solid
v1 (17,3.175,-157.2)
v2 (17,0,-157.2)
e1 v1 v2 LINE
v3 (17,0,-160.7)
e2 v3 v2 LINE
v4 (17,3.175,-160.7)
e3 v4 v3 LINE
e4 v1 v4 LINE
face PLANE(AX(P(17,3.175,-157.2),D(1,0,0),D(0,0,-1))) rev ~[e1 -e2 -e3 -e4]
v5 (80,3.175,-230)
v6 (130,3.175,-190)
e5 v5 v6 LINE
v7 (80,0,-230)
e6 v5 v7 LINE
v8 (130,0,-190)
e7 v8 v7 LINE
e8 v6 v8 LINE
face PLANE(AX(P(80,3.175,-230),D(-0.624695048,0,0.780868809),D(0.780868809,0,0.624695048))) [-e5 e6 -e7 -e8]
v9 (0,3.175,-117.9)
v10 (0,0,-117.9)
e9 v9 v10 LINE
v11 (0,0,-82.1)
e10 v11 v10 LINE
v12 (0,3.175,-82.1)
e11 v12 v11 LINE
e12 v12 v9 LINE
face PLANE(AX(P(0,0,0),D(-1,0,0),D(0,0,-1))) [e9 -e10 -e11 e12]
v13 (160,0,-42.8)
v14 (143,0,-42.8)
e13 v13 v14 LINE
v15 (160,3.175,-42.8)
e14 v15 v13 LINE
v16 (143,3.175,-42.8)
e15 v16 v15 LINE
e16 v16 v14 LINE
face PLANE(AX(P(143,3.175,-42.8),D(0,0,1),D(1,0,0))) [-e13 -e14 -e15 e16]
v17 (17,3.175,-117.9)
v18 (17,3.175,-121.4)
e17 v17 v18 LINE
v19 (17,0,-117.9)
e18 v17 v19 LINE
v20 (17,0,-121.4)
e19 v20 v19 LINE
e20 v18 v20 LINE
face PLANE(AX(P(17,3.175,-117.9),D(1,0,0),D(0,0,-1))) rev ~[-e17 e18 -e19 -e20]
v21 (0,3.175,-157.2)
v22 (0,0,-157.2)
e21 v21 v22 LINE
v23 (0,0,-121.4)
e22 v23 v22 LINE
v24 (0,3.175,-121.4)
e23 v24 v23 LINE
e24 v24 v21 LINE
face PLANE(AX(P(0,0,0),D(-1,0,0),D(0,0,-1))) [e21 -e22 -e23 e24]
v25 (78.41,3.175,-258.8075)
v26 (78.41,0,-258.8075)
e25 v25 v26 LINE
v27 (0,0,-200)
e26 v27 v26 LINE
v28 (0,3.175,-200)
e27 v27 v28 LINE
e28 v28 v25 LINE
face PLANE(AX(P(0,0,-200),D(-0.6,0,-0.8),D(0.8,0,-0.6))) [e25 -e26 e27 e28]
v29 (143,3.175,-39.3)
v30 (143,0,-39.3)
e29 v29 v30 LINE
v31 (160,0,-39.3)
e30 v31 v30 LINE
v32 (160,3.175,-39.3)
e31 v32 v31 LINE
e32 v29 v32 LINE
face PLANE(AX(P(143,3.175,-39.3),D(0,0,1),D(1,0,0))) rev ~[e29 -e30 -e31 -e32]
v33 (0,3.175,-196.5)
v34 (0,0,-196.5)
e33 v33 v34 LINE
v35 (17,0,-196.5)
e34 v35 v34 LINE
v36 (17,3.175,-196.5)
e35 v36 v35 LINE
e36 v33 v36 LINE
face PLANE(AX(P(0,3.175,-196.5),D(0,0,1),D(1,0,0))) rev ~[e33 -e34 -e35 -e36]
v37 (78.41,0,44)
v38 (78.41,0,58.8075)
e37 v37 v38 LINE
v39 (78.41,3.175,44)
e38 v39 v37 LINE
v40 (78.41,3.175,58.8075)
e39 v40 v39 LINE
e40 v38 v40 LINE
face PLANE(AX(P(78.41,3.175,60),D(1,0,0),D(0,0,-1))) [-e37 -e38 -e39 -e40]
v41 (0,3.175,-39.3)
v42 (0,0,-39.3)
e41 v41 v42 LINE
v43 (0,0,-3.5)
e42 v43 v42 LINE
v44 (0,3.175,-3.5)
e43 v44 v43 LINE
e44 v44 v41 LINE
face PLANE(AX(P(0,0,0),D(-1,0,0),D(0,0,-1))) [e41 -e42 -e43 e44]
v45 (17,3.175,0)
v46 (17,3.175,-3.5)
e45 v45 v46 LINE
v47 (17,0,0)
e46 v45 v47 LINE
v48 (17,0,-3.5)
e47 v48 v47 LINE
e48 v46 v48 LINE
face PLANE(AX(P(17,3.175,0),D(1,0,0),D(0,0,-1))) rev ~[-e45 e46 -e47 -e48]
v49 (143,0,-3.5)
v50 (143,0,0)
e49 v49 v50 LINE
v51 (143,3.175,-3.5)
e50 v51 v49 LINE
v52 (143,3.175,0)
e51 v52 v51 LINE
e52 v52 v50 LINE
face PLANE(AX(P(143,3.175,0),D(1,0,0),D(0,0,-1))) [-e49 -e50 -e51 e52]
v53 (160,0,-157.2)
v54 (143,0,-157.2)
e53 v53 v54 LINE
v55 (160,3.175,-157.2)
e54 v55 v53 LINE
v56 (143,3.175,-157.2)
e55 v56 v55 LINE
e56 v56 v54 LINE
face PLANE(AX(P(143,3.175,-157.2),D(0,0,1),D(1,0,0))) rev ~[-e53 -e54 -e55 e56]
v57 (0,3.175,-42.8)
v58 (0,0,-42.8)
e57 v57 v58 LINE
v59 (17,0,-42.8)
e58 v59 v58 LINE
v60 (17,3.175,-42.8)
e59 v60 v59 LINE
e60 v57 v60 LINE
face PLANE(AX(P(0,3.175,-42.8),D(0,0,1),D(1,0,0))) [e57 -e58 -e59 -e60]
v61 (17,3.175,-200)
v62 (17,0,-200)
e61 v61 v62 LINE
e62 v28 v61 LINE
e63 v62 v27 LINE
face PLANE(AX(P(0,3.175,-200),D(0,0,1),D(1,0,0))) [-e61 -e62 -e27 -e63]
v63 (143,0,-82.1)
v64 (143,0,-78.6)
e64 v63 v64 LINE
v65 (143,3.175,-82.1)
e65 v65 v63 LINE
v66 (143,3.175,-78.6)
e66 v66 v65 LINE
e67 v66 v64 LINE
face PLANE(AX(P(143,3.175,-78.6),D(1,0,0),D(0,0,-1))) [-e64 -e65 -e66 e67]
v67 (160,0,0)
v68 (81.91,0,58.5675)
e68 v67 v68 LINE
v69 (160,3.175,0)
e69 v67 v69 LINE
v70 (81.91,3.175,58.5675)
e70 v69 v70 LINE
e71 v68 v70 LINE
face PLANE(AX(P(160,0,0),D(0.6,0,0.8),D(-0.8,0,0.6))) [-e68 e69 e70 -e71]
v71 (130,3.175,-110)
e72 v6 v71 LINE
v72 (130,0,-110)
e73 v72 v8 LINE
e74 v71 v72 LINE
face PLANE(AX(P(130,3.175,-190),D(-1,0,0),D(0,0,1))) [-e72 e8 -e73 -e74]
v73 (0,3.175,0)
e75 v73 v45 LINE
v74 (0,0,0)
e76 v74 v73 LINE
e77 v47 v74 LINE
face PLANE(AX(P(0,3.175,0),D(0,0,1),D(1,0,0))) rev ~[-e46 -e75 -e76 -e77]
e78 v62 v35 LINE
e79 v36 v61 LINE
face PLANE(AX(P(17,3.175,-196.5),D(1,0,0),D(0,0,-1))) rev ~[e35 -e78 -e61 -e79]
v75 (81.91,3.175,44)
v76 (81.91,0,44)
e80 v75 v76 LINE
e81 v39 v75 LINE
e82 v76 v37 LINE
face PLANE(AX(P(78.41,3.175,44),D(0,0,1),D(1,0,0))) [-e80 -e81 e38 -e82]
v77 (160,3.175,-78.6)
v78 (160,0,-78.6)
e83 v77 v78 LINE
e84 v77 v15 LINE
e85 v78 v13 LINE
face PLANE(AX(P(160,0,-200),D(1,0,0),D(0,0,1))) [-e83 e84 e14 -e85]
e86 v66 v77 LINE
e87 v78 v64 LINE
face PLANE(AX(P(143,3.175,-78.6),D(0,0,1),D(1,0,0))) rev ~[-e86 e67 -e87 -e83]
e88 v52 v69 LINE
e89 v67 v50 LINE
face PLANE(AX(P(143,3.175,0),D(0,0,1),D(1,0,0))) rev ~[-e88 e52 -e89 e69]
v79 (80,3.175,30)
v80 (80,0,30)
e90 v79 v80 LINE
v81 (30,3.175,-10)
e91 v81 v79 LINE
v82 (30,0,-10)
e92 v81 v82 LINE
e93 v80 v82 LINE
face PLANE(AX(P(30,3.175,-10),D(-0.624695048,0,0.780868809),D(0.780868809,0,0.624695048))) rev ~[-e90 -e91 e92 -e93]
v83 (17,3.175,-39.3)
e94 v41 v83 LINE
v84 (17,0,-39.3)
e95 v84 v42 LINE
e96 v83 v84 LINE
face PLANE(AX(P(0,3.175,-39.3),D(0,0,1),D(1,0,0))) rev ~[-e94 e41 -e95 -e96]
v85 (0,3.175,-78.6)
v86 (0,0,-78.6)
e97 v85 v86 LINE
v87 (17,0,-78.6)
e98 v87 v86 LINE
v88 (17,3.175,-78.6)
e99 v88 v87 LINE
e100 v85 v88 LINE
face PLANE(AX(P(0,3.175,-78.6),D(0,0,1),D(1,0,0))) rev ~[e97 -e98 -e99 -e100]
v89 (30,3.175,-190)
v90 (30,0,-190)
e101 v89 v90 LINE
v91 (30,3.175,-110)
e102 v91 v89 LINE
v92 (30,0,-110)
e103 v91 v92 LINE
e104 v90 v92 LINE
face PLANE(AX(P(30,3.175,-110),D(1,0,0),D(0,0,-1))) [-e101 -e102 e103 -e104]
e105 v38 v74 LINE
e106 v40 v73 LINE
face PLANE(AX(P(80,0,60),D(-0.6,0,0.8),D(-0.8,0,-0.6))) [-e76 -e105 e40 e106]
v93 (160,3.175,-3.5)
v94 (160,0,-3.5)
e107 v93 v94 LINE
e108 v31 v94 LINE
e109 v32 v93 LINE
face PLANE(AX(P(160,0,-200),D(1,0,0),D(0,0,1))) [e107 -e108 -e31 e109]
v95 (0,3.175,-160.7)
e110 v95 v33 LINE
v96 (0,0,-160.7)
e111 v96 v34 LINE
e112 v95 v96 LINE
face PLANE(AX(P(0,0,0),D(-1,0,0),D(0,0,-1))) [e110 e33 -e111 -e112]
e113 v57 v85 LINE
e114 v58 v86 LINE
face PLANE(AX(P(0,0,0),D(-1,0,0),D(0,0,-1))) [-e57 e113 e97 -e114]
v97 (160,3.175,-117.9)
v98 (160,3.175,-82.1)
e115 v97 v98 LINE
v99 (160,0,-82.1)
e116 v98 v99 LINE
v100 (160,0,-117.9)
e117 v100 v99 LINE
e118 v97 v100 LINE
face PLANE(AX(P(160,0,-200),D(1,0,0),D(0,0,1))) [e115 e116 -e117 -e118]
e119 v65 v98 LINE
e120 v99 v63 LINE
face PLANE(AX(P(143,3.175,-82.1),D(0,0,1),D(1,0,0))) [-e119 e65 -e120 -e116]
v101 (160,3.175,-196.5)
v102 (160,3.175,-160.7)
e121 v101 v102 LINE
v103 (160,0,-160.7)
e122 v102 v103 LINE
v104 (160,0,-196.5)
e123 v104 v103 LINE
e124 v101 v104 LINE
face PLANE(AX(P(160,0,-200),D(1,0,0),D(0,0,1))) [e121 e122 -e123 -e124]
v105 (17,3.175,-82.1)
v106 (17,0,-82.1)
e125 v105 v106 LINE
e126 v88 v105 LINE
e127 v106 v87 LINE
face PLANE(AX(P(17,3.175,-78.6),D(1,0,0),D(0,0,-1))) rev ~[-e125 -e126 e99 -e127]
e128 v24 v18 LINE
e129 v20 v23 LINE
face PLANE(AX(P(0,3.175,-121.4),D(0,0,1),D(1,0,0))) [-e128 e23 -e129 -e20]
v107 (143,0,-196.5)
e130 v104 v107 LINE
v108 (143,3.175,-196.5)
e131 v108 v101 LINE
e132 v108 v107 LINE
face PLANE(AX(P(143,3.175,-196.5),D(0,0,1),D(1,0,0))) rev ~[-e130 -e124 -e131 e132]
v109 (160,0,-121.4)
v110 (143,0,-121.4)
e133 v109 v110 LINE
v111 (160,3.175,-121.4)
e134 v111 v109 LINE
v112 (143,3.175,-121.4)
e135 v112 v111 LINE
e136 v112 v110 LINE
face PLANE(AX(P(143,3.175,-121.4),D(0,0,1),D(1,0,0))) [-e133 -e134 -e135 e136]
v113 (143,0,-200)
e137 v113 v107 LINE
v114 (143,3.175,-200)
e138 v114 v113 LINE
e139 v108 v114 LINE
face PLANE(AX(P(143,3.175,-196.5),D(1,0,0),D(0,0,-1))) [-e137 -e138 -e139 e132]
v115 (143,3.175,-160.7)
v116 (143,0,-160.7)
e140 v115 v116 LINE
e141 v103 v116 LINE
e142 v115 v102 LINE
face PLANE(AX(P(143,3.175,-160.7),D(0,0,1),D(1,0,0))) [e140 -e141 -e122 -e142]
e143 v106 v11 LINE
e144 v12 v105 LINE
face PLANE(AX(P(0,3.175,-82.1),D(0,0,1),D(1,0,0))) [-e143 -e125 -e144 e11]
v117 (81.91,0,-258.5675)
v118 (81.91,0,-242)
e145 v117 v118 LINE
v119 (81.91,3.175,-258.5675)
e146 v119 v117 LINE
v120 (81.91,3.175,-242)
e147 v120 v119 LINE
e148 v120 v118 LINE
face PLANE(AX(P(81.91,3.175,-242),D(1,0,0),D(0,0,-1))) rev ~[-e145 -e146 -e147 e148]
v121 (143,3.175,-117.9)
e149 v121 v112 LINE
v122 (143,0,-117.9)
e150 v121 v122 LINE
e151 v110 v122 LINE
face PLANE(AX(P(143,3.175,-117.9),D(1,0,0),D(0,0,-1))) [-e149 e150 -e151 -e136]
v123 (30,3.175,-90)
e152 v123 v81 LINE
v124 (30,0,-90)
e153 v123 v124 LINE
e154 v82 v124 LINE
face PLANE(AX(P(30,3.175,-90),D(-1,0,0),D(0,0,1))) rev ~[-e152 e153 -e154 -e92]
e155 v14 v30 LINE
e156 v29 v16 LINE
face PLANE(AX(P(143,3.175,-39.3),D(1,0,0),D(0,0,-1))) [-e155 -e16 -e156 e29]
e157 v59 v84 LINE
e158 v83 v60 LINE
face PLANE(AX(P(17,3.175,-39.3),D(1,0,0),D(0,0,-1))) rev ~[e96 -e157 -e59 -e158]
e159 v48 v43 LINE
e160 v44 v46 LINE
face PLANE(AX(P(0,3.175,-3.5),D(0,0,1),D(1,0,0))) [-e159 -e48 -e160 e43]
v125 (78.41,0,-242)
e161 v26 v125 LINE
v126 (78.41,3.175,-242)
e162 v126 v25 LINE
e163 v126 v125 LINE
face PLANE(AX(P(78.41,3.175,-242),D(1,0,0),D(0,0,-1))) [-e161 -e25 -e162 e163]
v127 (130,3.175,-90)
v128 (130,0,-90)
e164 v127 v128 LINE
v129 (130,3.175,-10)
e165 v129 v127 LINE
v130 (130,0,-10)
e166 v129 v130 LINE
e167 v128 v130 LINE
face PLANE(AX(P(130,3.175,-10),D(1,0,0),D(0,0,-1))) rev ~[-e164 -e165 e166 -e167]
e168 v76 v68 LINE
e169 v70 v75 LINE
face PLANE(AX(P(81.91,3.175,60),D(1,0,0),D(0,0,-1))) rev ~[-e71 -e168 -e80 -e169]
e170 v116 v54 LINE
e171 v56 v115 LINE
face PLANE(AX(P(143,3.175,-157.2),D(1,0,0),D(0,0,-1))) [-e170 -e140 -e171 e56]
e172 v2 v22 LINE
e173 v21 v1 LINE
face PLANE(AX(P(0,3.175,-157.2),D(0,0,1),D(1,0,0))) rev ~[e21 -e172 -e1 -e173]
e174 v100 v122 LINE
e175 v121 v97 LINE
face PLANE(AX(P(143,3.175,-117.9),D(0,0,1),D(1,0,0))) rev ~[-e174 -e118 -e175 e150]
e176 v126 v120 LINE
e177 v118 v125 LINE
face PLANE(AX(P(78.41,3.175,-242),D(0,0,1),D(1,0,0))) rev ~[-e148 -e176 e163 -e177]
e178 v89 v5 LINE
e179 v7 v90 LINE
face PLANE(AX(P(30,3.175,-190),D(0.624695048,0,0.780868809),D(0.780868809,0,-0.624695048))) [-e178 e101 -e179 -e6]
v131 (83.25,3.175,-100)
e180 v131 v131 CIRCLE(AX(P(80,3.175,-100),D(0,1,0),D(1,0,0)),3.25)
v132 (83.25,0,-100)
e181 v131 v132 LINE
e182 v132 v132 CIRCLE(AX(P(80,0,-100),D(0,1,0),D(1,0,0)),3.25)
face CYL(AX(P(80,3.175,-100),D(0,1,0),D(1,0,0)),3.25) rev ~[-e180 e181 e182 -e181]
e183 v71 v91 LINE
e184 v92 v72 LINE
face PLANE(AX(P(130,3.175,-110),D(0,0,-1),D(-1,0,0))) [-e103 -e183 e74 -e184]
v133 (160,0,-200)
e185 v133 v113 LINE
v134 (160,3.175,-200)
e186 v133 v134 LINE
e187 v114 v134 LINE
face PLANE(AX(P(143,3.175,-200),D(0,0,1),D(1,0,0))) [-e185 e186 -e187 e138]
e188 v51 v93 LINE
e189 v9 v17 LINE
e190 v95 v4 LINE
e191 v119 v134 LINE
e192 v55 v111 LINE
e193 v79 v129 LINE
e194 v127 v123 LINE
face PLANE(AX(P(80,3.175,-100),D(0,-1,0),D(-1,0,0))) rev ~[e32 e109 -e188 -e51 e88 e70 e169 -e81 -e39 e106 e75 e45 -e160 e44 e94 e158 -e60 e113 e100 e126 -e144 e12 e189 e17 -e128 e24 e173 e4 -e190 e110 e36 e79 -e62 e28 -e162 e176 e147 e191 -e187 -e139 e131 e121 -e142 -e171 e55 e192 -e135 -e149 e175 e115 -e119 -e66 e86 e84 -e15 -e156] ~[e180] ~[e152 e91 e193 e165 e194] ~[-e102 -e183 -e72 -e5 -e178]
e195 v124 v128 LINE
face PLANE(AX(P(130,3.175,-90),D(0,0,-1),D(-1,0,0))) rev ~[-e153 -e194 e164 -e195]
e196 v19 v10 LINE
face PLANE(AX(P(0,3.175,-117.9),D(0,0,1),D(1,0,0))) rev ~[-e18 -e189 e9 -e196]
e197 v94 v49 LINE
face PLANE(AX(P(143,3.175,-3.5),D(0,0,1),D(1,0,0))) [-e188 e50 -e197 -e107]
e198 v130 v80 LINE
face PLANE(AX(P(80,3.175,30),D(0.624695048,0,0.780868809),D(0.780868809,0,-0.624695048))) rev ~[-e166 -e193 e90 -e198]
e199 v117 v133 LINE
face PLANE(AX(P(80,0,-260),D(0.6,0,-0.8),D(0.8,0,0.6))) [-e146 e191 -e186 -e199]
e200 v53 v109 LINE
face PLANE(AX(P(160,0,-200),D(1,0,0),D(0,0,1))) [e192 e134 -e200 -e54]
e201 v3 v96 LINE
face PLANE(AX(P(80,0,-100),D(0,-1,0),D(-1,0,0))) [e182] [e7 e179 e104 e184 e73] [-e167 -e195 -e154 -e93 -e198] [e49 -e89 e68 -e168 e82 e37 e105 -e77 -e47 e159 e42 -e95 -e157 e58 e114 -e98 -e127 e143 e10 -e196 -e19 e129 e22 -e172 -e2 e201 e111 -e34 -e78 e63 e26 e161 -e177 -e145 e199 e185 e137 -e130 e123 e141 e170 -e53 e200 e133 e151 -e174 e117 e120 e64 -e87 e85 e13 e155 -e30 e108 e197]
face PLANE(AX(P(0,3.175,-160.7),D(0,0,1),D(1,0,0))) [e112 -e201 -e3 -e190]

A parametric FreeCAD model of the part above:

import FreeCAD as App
import Part
import Sketcher

V = App.Vector


def add_polygon(sketch, points):
    """Adds a closed chain of lines whose ends are joined by coincident constraints."""
    first, n = sketch.GeometryCount, len(points)
    for a, b in zip(points, points[1:] + points[:1]):
        sketch.addGeometry(Part.LineSegment(App.Vector(*a, 0), App.Vector(*b, 0)), False)
    for i in range(n):
        sketch.addConstraint(Sketcher.Constraint("Coincident", first + i, 2, first + (i + 1) % n, 1))

doc = App.newDocument("Part")
body = doc.addObject("PartDesign::Body", "Body")

# Sketch on XZ plane
sketch1 = body.newObject("Sketcher::SketchObject", "Sketch")
sketch1.AttachmentSupport = (doc.getObject("XZ_Plane"), [""])
sketch1.MapMode = "FlatFace"
add_polygon(sketch1, [(80, -260), (0, -200), (0, 0), (80, 60), (160, 0), (160, -200)])  # lines 0-5
sketch1.addConstraint([
    Sketcher.Constraint("Vertical", 1),
    Sketcher.Constraint("Vertical", 4),
    Sketcher.Constraint("Coincident", 1, 2, -1, 1),
    Sketcher.Constraint("PointOnObject", 3, 2, -1),
    Sketcher.Constraint("Parallel", 0, 3),
    Sketcher.Constraint("Parallel", 2, 5),
    Sketcher.Constraint("Horizontal", 0, 2, 4, 2),
    Sketcher.Constraint("Vertical", 2, 2, 5, 2),
    Sketcher.Constraint("DistanceY", 1, 1, 1, 2, 200.0),
    Sketcher.Constraint("Distance", 0, 100.0),
    Sketcher.Constraint("DistanceX", -1, 1, 2, 2, 80.0),
])
pad1 = body.newObject("PartDesign::Pad", "Pad")
pad1.Profile = sketch1
pad1.Length = 3.175
pad1.Reversed = True

# Sketch on XZ plane
sketch2 = body.newObject("Sketcher::SketchObject", "Sketch001")
sketch2.AttachmentSupport = (doc.getObject("XZ_Plane"), [""])
sketch2.MapMode = "FlatFace"
sketch2.AttachmentOffset = App.Placement(V(0, 0, -3.175), App.Rotation())
sketch2.addGeometry(Part.Circle(V(80, -100, 0), V(0, 0, 1), 3.25), False)  # 0
add_polygon(sketch2, [(80, -230), (30, -190), (30, -110), (130, -110), (130, -190)])  # lines 1-5
add_polygon(sketch2, [(0, -160.7), (0, -157.2), (17, -157.2), (17, -160.7)])  # lines 6-9
add_polygon(sketch2, [(30, -90), (30, -10), (80, 30), (130, -10), (130, -90)])  # lines 10-14
add_polygon(sketch2, [(0, -200), (0, -196.5), (17, -196.5), (17, -200)])  # lines 15-18
add_polygon(sketch2, [(0, -121.4), (0, -117.9), (17, -117.9), (17, -121.4)])  # lines 19-22
add_polygon(sketch2, [(0, -82.1), (0, -78.6), (17, -78.6), (17, -82.1)])  # lines 23-26
add_polygon(sketch2, [(0, -42.8), (0, -39.3), (17, -39.3), (17, -42.8)])  # lines 27-30
add_polygon(sketch2, [(0, -3.5), (0, 0), (17, 0), (17, -3.5)])  # lines 31-34
add_polygon(sketch2, [(143, -3.5), (143, 0), (160, 0), (160, -3.5)])  # lines 35-38
add_polygon(sketch2, [(143, -42.8), (143, -39.3), (160, -39.3), (160, -42.8)])  # lines 39-42
add_polygon(sketch2, [(143, -82.1), (143, -78.6), (160, -78.6), (160, -82.1)])  # lines 43-46
add_polygon(sketch2, [(143, -121.4), (143, -117.9), (160, -117.9), (160, -121.4)])  # lines 47-50
add_polygon(sketch2, [(143, -160.7), (143, -157.2), (160, -157.2), (160, -160.7)])  # lines 51-54
add_polygon(sketch2, [(143, -200), (143, -196.5), (160, -196.5), (160, -200)])  # lines 55-58
sketch2.addConstraint([
    Sketcher.Constraint("Vertical", 2),
    Sketcher.Constraint("Horizontal", 3),
    Sketcher.Constraint("Vertical", 4),
    Sketcher.Constraint("Vertical", 6),
    Sketcher.Constraint("Horizontal", 7),
    Sketcher.Constraint("Vertical", 8),
    Sketcher.Constraint("Horizontal", 9),
    Sketcher.Constraint("Vertical", 10),
    Sketcher.Constraint("Vertical", 13),
    Sketcher.Constraint("Horizontal", 14),
    Sketcher.Constraint("Vertical", 15),
    Sketcher.Constraint("Horizontal", 16),
    Sketcher.Constraint("Vertical", 17),
    Sketcher.Constraint("Horizontal", 18),
    Sketcher.Constraint("Vertical", 19),
    Sketcher.Constraint("Horizontal", 20),
    Sketcher.Constraint("Vertical", 21),
    Sketcher.Constraint("Horizontal", 22),
    Sketcher.Constraint("Vertical", 23),
    Sketcher.Constraint("Horizontal", 24),
    Sketcher.Constraint("Vertical", 25),
    Sketcher.Constraint("Horizontal", 26),
    Sketcher.Constraint("Vertical", 27),
    Sketcher.Constraint("Horizontal", 28),
    Sketcher.Constraint("Vertical", 29),
    Sketcher.Constraint("Horizontal", 30),
    Sketcher.Constraint("Vertical", 31),
    Sketcher.Constraint("Horizontal", 32),
    Sketcher.Constraint("Vertical", 33),
    Sketcher.Constraint("Horizontal", 34),
    Sketcher.Constraint("Vertical", 35),
    Sketcher.Constraint("Horizontal", 36),
    Sketcher.Constraint("Vertical", 37),
    Sketcher.Constraint("Horizontal", 38),
    Sketcher.Constraint("Vertical", 39),
    Sketcher.Constraint("Horizontal", 40),
    Sketcher.Constraint("Vertical", 41),
    Sketcher.Constraint("Horizontal", 42),
    Sketcher.Constraint("Vertical", 43),
    Sketcher.Constraint("Horizontal", 44),
    Sketcher.Constraint("Vertical", 45),
    Sketcher.Constraint("Horizontal", 46),
    Sketcher.Constraint("Vertical", 47),
    Sketcher.Constraint("Horizontal", 48),
    Sketcher.Constraint("Vertical", 49),
    Sketcher.Constraint("Horizontal", 50),
    Sketcher.Constraint("Vertical", 51),
    Sketcher.Constraint("Horizontal", 52),
    Sketcher.Constraint("Vertical", 53),
    Sketcher.Constraint("Horizontal", 54),
    Sketcher.Constraint("Vertical", 55),
    Sketcher.Constraint("Horizontal", 56),
    Sketcher.Constraint("Vertical", 57),
    Sketcher.Constraint("Horizontal", 58),
    Sketcher.Constraint("Coincident", 31, 2, -1, 1),
    Sketcher.Constraint("PointOnObject", 6, 2, -2),
    Sketcher.Constraint("PointOnObject", 15, 2, -2),
    Sketcher.Constraint("PointOnObject", 19, 2, -2),
    Sketcher.Constraint("PointOnObject", 23, 2, -2),
    Sketcher.Constraint("PointOnObject", 27, 2, -2),
    Sketcher.Constraint("PointOnObject", 35, 2, -1),
    Sketcher.Constraint("Parallel", 5, 11),
    Sketcher.Constraint("Parallel", 1, 12),
    Sketcher.Constraint("Horizontal", 1, 2, 4, 2),
    Sketcher.Constraint("Horizontal", 10, 2, 12, 2),
    Sketcher.Constraint("Horizontal", 34, 2, 37, 2),
    Sketcher.Constraint("Horizontal", 28, 2, 39, 2),
    Sketcher.Constraint("Horizontal", 30, 2, 41, 2),
    Sketcher.Constraint("Horizontal", 24, 2, 43, 2),
    Sketcher.Constraint("Horizontal", 26, 2, 45, 2),
    Sketcher.Constraint("Horizontal", 20, 2, 47, 2),
    Sketcher.Constraint("Horizontal", 22, 2, 49, 2),
    Sketcher.Constraint("Horizontal", 7, 2, 51, 2),
    Sketcher.Constraint("Horizontal", 9, 2, 53, 2),
    Sketcher.Constraint("Horizontal", 16, 2, 55, 2),
    Sketcher.Constraint("Horizontal", 18, 2, 57, 2),
    Sketcher.Constraint("Vertical", 0, 3, 5, 2),
    Sketcher.Constraint("Vertical", 2, 2, 10, 2),
    Sketcher.Constraint("Vertical", 5, 2, 11, 2),
    Sketcher.Constraint("Vertical", 4, 2, 12, 2),
    Sketcher.Constraint("Vertical", 8, 2, 16, 2),
    Sketcher.Constraint("Vertical", 17, 2, 20, 2),
    Sketcher.Constraint("Vertical", 21, 2, 24, 2),
    Sketcher.Constraint("Vertical", 25, 2, 28, 2),
    Sketcher.Constraint("Vertical", 29, 2, 32, 2),
    Sketcher.Constraint("Vertical", 38, 2, 39, 2),
    Sketcher.Constraint("Vertical", 37, 2, 40, 2),
    Sketcher.Constraint("Vertical", 42, 2, 43, 2),
    Sketcher.Constraint("Vertical", 41, 2, 44, 2),
    Sketcher.Constraint("Vertical", 46, 2, 47, 2),
    Sketcher.Constraint("Vertical", 45, 2, 48, 2),
    Sketcher.Constraint("Vertical", 50, 2, 51, 2),
    Sketcher.Constraint("Vertical", 49, 2, 52, 2),
    Sketcher.Constraint("Vertical", 54, 2, 55, 2),
    Sketcher.Constraint("Vertical", 53, 2, 56, 2),
    Sketcher.Constraint("Equal", 34, 36),
    Sketcher.Constraint("Equal", 4, 10),
    Sketcher.Constraint("Equal", 8, 15),
    Sketcher.Constraint("Equal", 17, 19),
    Sketcher.Constraint("Equal", 21, 23),
    Sketcher.Constraint("Equal", 25, 27),
    Sketcher.Constraint("Equal", 29, 31),
    Sketcher.Constraint("Diameter", 0, 6.5),
    Sketcher.Constraint("DistanceX", 3, 1, 3, 2, 100.0),
    Sketcher.Constraint("DistanceX", 7, 1, 7, 2, 17.0),
    Sketcher.Constraint("DistanceY", 2, 1, 2, 2, 80.0),
    Sketcher.Constraint("DistanceY", 6, 1, 6, 2, 3.5),
    Sketcher.Constraint("DistanceX", -1, 1, 0, 3, 80.0),
    Sketcher.Constraint("DistanceY", 0, 3, -1, 1, 100.0),
    Sketcher.Constraint("DistanceY", 1, 2, -1, 1, 190.0),
    Sketcher.Constraint("DistanceY", 5, 2, -1, 1, 230.0),
    Sketcher.Constraint("DistanceY", 10, 2, -1, 1, 10.0),
    Sketcher.Constraint("DistanceY", 17, 2, -1, 1, 200.0),
    Sketcher.Constraint("DistanceX", -1, 1, 35, 2, 143.0),
    Sketcher.Constraint("DistanceY", 6, 2, -1, 1, 157.2),
    Sketcher.Constraint("DistanceY", 19, 2, -1, 1, 117.9),
    Sketcher.Constraint("DistanceY", 23, 2, -1, 1, 78.6),
    Sketcher.Constraint("DistanceY", 27, 2, -1, 1, 39.3),
])
pocket1 = body.newObject("PartDesign::Pocket", "Pocket")
pocket1.Profile = sketch2
pocket1.Type = "ThroughAll"
pocket1.Reversed = True

# Sketch on XZ plane
sketch3 = body.newObject("Sketcher::SketchObject", "Sketch002")
sketch3.AttachmentSupport = (doc.getObject("XZ_Plane"), [""])
sketch3.MapMode = "FlatFace"
sketch3.AttachmentOffset = App.Placement(V(0, 0, -3.175), App.Rotation())
add_polygon(sketch3, [(78.41, -260), (78.41, -242), (81.91, -242), (81.91, -260)])  # lines 0-3
add_polygon(sketch3, [(78.41, 44), (78.41, 60), (81.91, 60), (81.91, 44)])  # lines 4-7
sketch3.addConstraint([
    Sketcher.Constraint("Vertical", 0),
    Sketcher.Constraint("Horizontal", 1),
    Sketcher.Constraint("Vertical", 2),
    Sketcher.Constraint("Horizontal", 3),
    Sketcher.Constraint("Vertical", 4),
    Sketcher.Constraint("Horizontal", 5),
    Sketcher.Constraint("Vertical", 6),
    Sketcher.Constraint("Horizontal", 7),
    Sketcher.Constraint("Vertical", 3, 2, 4, 2),
    Sketcher.Constraint("Vertical", 2, 2, 5, 2),
    Sketcher.Constraint("DistanceY", 0, 1, 0, 2, 18.0),
    Sketcher.Constraint("DistanceY", 4, 1, 4, 2, 16.0),
    Sketcher.Constraint("DistanceX", 1, 1, 1, 2, 3.5),
    Sketcher.Constraint("DistanceY", 0, 2, -1, 1, 242.0),
    Sketcher.Constraint("DistanceY", -1, 1, 4, 2, 60.0),
    Sketcher.Constraint("DistanceX", -1, 1, 0, 2, 78.41),
])
pocket2 = body.newObject("PartDesign::Pocket", "Pocket001")
pocket2.Profile = sketch3
pocket2.Type = "ThroughAll"
pocket2.Reversed = True

doc.recompute()
